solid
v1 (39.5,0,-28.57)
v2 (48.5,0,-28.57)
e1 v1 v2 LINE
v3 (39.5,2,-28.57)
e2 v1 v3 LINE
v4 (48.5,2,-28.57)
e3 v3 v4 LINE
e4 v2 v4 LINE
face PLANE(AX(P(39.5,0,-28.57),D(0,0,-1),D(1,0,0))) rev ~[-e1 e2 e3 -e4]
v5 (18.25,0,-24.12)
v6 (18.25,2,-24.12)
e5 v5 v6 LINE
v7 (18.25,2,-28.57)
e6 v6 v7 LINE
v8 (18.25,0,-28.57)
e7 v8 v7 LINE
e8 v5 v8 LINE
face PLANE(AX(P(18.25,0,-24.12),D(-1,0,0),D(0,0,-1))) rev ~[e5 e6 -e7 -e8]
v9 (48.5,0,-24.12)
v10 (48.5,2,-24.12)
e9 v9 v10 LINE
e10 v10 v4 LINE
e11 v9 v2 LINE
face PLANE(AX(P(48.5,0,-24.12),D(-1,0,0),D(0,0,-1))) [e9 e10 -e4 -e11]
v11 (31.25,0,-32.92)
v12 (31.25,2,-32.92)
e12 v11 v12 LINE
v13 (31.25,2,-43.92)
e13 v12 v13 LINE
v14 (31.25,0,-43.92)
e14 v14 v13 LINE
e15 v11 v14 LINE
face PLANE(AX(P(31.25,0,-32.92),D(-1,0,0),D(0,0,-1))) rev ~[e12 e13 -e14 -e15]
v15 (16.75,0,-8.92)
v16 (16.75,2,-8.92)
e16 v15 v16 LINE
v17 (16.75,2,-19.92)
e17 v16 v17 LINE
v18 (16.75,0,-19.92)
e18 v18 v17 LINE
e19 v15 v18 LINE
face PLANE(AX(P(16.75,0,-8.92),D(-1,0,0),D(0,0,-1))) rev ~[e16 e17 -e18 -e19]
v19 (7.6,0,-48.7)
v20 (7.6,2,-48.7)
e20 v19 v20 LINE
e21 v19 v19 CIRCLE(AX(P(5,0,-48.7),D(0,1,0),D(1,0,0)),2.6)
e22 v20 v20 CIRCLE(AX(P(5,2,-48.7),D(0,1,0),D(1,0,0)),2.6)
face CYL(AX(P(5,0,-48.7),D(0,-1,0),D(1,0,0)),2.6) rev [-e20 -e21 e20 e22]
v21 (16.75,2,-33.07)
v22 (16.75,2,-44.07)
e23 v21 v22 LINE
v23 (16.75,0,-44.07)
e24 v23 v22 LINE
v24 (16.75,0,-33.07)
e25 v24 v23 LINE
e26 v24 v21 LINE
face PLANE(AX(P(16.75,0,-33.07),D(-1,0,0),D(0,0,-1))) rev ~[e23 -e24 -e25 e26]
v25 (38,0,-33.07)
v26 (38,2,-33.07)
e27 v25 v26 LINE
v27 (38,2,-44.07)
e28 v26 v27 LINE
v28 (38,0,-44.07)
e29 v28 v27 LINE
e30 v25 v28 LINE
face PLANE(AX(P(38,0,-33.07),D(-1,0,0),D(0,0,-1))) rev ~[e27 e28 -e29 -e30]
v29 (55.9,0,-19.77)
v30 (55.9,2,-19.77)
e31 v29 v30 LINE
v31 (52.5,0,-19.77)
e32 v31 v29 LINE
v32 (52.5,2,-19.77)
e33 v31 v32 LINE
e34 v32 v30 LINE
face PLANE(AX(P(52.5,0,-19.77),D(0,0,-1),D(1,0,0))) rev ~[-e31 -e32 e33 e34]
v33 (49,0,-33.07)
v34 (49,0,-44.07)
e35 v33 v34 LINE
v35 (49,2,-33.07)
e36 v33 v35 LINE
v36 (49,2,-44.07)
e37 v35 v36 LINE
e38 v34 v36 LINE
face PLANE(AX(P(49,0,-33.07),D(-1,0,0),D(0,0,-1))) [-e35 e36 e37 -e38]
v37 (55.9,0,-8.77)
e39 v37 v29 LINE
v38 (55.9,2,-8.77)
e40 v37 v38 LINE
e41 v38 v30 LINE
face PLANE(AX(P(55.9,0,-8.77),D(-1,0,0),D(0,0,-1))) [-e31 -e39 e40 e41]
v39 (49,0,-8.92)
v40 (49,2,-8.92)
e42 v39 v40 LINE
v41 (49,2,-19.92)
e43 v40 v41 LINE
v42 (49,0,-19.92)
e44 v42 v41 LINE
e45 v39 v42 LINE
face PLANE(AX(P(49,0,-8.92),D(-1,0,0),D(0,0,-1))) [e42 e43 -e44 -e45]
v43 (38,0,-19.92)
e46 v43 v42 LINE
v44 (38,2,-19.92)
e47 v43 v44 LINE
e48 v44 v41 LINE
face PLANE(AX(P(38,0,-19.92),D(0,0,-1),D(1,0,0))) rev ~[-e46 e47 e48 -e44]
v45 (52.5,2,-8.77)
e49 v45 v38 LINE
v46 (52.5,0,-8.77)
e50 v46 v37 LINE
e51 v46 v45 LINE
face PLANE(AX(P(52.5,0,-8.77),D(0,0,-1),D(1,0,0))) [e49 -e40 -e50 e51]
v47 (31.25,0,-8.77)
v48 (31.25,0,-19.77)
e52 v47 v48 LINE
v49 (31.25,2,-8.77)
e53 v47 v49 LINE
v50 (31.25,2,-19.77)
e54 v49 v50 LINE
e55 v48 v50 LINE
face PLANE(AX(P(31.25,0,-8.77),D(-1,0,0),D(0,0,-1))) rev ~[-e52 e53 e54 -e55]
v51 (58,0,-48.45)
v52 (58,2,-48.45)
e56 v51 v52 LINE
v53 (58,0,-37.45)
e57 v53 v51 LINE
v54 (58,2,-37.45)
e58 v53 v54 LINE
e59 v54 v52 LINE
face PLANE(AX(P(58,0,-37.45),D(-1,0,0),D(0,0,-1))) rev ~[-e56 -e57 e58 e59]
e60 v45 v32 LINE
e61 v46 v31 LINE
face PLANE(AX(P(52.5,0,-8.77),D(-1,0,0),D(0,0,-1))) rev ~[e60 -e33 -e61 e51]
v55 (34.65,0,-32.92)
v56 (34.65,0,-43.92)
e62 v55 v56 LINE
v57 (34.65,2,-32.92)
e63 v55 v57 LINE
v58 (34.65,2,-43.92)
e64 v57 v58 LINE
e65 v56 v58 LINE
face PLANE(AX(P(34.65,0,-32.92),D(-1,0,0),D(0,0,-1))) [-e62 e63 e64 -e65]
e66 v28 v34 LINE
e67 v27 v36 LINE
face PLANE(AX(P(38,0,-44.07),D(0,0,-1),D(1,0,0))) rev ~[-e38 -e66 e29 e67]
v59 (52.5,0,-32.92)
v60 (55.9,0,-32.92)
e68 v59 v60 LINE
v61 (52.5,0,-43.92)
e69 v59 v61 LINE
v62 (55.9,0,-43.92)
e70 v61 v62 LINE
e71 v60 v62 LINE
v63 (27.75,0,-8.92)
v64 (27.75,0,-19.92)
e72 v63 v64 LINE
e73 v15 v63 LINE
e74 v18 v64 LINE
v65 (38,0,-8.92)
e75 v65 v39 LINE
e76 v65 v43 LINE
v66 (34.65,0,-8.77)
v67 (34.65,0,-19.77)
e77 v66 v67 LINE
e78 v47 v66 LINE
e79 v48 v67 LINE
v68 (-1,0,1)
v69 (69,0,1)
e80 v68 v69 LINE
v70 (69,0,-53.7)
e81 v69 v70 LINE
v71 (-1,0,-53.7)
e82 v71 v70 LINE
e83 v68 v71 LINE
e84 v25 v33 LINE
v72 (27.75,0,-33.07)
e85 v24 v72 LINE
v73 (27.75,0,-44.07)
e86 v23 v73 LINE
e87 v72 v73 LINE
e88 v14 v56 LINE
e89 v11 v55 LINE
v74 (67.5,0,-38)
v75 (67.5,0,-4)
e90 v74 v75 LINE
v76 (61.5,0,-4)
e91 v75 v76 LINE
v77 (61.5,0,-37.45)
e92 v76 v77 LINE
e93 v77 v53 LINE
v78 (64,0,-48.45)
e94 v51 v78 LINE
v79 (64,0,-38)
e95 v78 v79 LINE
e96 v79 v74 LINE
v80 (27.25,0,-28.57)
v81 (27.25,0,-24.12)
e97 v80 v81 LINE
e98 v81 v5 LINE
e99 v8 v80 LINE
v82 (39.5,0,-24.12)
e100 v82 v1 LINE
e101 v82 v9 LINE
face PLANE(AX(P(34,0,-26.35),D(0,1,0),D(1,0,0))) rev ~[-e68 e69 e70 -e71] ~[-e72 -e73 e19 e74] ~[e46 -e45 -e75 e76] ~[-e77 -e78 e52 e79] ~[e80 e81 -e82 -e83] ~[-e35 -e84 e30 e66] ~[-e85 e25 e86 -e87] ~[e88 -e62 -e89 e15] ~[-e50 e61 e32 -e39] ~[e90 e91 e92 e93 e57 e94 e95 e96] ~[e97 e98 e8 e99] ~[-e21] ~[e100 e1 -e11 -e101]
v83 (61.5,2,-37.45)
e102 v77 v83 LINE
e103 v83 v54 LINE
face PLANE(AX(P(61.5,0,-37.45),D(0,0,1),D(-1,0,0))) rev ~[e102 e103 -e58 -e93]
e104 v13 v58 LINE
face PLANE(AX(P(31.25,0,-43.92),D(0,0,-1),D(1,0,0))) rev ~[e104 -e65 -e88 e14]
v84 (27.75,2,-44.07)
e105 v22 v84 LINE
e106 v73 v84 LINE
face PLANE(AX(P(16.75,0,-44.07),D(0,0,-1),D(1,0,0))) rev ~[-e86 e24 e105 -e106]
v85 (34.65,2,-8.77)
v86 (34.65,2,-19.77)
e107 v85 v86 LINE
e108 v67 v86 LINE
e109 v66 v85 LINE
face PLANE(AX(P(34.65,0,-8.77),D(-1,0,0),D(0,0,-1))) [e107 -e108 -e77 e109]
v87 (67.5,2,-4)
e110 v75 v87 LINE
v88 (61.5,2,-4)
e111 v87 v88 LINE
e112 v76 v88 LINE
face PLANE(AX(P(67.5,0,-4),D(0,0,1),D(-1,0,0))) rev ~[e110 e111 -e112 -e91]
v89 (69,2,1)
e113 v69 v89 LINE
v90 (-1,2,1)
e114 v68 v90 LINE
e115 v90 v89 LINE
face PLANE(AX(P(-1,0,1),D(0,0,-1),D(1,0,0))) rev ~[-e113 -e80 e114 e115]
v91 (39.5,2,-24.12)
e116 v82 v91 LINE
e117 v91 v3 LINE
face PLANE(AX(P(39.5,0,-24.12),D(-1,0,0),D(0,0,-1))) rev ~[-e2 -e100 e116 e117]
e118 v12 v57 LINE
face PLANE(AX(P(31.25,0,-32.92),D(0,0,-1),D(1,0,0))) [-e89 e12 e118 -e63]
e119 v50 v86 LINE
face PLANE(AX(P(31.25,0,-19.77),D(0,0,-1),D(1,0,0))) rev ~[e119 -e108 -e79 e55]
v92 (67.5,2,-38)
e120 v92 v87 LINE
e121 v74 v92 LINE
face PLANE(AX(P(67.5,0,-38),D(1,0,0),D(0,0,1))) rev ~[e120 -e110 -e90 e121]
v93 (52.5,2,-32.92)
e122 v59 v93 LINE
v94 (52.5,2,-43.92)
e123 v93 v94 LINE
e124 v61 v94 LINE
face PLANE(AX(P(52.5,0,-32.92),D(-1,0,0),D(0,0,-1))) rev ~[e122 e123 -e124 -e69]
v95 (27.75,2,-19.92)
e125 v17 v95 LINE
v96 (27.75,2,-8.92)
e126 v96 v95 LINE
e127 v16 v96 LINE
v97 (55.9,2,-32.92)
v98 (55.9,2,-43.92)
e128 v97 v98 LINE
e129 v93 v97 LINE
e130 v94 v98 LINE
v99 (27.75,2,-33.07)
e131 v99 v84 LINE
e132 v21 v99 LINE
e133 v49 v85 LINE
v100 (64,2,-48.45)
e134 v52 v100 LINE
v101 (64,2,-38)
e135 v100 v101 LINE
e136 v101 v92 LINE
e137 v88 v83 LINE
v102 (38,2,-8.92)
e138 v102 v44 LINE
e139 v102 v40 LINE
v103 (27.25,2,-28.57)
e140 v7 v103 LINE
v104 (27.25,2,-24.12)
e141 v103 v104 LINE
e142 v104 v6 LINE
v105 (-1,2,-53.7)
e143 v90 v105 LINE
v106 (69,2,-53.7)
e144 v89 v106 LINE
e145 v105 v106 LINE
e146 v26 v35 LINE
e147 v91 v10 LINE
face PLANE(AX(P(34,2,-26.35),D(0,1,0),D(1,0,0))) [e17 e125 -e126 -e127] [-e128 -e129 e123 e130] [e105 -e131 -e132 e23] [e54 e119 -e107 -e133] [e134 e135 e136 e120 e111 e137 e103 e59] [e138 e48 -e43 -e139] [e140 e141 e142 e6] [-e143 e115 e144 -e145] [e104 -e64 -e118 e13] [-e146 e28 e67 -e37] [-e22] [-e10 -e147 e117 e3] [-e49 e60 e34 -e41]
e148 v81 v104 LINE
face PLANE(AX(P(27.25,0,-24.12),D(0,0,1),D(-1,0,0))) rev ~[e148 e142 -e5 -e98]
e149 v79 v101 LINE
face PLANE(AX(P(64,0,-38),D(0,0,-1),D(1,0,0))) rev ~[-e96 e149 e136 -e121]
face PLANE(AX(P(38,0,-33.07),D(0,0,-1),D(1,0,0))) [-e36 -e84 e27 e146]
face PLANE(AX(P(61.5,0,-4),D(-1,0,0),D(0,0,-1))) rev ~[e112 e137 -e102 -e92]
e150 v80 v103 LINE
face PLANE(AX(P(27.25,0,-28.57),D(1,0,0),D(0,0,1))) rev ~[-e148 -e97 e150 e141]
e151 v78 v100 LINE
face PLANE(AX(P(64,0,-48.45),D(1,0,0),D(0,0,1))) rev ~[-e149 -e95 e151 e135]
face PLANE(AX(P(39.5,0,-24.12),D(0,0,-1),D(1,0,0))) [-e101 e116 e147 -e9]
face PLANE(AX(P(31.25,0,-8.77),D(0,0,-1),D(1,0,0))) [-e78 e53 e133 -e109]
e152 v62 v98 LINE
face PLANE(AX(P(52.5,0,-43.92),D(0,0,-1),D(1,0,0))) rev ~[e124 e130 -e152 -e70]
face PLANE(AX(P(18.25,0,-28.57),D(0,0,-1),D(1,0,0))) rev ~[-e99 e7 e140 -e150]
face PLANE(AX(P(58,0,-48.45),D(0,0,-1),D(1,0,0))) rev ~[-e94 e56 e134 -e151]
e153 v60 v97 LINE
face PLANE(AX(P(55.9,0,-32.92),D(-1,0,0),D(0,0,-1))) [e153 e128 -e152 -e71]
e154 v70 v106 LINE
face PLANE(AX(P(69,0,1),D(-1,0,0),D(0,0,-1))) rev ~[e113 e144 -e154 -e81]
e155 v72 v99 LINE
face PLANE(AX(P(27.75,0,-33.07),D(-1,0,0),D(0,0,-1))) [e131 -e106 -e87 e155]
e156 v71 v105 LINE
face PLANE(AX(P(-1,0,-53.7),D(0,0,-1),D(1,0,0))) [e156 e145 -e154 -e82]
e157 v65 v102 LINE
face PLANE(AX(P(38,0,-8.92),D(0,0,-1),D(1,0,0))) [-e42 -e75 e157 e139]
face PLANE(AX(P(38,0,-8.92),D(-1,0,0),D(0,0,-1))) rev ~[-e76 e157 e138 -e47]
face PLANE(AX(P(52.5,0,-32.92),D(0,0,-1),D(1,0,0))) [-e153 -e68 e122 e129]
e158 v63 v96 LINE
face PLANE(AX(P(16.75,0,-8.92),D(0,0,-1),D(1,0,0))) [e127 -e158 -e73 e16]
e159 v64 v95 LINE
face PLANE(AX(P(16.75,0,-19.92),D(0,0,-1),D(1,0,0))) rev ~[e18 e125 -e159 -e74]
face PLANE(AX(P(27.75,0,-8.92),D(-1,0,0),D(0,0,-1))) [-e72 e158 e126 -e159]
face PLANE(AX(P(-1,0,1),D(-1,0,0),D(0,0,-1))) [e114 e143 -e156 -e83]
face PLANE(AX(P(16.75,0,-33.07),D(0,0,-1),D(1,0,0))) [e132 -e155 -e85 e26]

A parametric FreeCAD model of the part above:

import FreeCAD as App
import Part
import Sketcher

V = App.Vector
Q = App.Units.Quantity


def add_polygon(sketch, points):
    """Adds a closed chain of lines whose ends are joined by coincident constraints."""
    first, n = sketch.GeometryCount, len(points)
    for a, b in zip(points, points[1:] + points[:1]):
        sketch.addGeometry(Part.LineSegment(App.Vector(*a, 0), App.Vector(*b, 0)), False)
    for i in range(n):
        sketch.addConstraint(Sketcher.Constraint("Coincident", first + i, 2, first + (i + 1) % n, 1))

doc = App.newDocument("Part")
body = doc.addObject("PartDesign::Body", "Body")

# Sketch on XZ plane
sketch1 = body.newObject("Sketcher::SketchObject", "Sketch")
sketch1.AttachmentSupport = (doc.getObject("XZ_Plane"), [""])
sketch1.MapMode = "FlatFace"
add_polygon(sketch1, [(-1, -53.7), (-1, 1), (69, 1), (69, -53.7)])  # lines 0-3
add_polygon(sketch1, [(27.8, -8.9), (16.8, -8.9), (16.8, -19.9), (27.8, -19.9)])  # lines 4-7
add_polygon(sketch1, [(34.6, -8.8), (31.2, -8.8), (31.2, -19.8), (34.6, -19.8)])  # lines 8-11
add_polygon(sketch1, [(18.2, -24.1), (18.2, -28.6), (27.2, -28.6), (27.2, -24.1)])  # lines 12-15
add_polygon(sketch1, [(49, -8.9), (38, -8.9), (38, -19.9), (49, -19.9)])  # lines 16-19
add_polygon(sketch1, [(55.9, -8.8), (52.5, -8.8), (52.5, -19.8), (55.9, -19.8)])  # lines 20-23
add_polygon(sketch1, [(48.5, -24.1), (39.5, -24.1), (39.5, -28.6), (48.5, -28.6)])  # lines 24-27
add_polygon(sketch1, [(67.5, -38), (67.5, -4), (61.5, -4), (61.5, -37.5), (58, -37.5), (58, -48.5), (64, -48.5), (64, -38)])  # lines 28-35
add_polygon(sketch1, [(27.8, -33.1), (16.8, -33.1), (16.8, -44.1), (27.8, -44.1)])  # lines 36-39
add_polygon(sketch1, [(34.6, -32.9), (31.2, -32.9), (31.2, -43.9), (34.6, -43.9)])  # lines 40-43
sketch1.addGeometry(Part.Circle(V(5, -48.7, 0), V(0, 0, 1), 2.6), False)  # 44
add_polygon(sketch1, [(49, -33.1), (38, -33.1), (38, -44.1), (49, -44.1)])  # lines 45-48
add_polygon(sketch1, [(55.9, -32.9), (52.5, -32.9), (52.5, -43.9), (55.9, -43.9)])  # lines 49-52
sketch1.addConstraint(Sketcher.Constraint("Vertical", 0))
sketch1.addConstraint(Sketcher.Constraint("Horizontal", 1))
sketch1.addConstraint(Sketcher.Constraint("Vertical", 2))
sketch1.addConstraint(Sketcher.Constraint("Horizontal", 3))
sketch1.addConstraint(Sketcher.Constraint("Horizontal", 4))
sketch1.addConstraint(Sketcher.Constraint("Vertical", 5))
sketch1.addConstraint(Sketcher.Constraint("Horizontal", 6))
sketch1.addConstraint(Sketcher.Constraint("Vertical", 7))
sketch1.addConstraint(Sketcher.Constraint("Horizontal", 8))
sketch1.addConstraint(Sketcher.Constraint("Vertical", 9))
sketch1.addConstraint(Sketcher.Constraint("Horizontal", 10))
sketch1.addConstraint(Sketcher.Constraint("Vertical", 11))
sketch1.addConstraint(Sketcher.Constraint("Vertical", 12))
sketch1.addConstraint(Sketcher.Constraint("Horizontal", 13))
sketch1.addConstraint(Sketcher.Constraint("Vertical", 14))
sketch1.addConstraint(Sketcher.Constraint("Horizontal", 15))
sketch1.addConstraint(Sketcher.Constraint("Horizontal", 16))
sketch1.addConstraint(Sketcher.Constraint("Vertical", 17))
sketch1.addConstraint(Sketcher.Constraint("Horizontal", 18))
sketch1.addConstraint(Sketcher.Constraint("Vertical", 19))
sketch1.addConstraint(Sketcher.Constraint("Horizontal", 20))
sketch1.addConstraint(Sketcher.Constraint("Vertical", 21))
sketch1.addConstraint(Sketcher.Constraint("Horizontal", 22))
sketch1.addConstraint(Sketcher.Constraint("Vertical", 23))
sketch1.addConstraint(Sketcher.Constraint("Horizontal", 24))
sketch1.addConstraint(Sketcher.Constraint("Vertical", 25))
sketch1.addConstraint(Sketcher.Constraint("Horizontal", 26))
sketch1.addConstraint(Sketcher.Constraint("Vertical", 27))
sketch1.addConstraint(Sketcher.Constraint("Vertical", 28))
sketch1.addConstraint(Sketcher.Constraint("Horizontal", 29))
sketch1.addConstraint(Sketcher.Constraint("Vertical", 30))
sketch1.addConstraint(Sketcher.Constraint("Horizontal", 31))
sketch1.addConstraint(Sketcher.Constraint("Vertical", 32))
sketch1.addConstraint(Sketcher.Constraint("Horizontal", 33))
sketch1.addConstraint(Sketcher.Constraint("Vertical", 34))
sketch1.addConstraint(Sketcher.Constraint("Horizontal", 35))
sketch1.addConstraint(Sketcher.Constraint("Horizontal", 36))
sketch1.addConstraint(Sketcher.Constraint("Vertical", 37))
sketch1.addConstraint(Sketcher.Constraint("Horizontal", 38))
sketch1.addConstraint(Sketcher.Constraint("Vertical", 39))
sketch1.addConstraint(Sketcher.Constraint("Horizontal", 40))
sketch1.addConstraint(Sketcher.Constraint("Vertical", 41))
sketch1.addConstraint(Sketcher.Constraint("Horizontal", 42))
sketch1.addConstraint(Sketcher.Constraint("Vertical", 43))
sketch1.addConstraint(Sketcher.Constraint("Horizontal", 45))
sketch1.addConstraint(Sketcher.Constraint("Vertical", 46))
sketch1.addConstraint(Sketcher.Constraint("Horizontal", 47))
sketch1.addConstraint(Sketcher.Constraint("Vertical", 48))
sketch1.addConstraint(Sketcher.Constraint("Horizontal", 49))
sketch1.addConstraint(Sketcher.Constraint("Vertical", 50))
sketch1.addConstraint(Sketcher.Constraint("Horizontal", 51))
sketch1.addConstraint(Sketcher.Constraint("Vertical", 52))
sketch1.addConstraint(Sketcher.Constraint("Horizontal", 7, 2, 16, 2))
sketch1.addConstraint(Sketcher.Constraint("Horizontal", 6, 2, 17, 2))
sketch1.addConstraint(Sketcher.Constraint("Horizontal", 11, 2, 20, 2))
sketch1.addConstraint(Sketcher.Constraint("Horizontal", 10, 2, 21, 2))
sketch1.addConstraint(Sketcher.Constraint("Horizontal", 15, 2, 24, 2))
sketch1.addConstraint(Sketcher.Constraint("Horizontal", 13, 2, 25, 2))
sketch1.addConstraint(Sketcher.Constraint("Horizontal", 39, 2, 45, 2))
sketch1.addConstraint(Sketcher.Constraint("Horizontal", 38, 2, 46, 2))
sketch1.addConstraint(Sketcher.Constraint("Horizontal", 43, 2, 49, 2))
sketch1.addConstraint(Sketcher.Constraint("Horizontal", 42, 2, 50, 2))
sketch1.addConstraint(Sketcher.Constraint("Vertical", 5, 2, 36, 2))
sketch1.addConstraint(Sketcher.Constraint("Vertical", 7, 2, 38, 2))
sketch1.addConstraint(Sketcher.Constraint("Vertical", 9, 2, 40, 2))
sketch1.addConstraint(Sketcher.Constraint("Vertical", 11, 2, 42, 2))
sketch1.addConstraint(Sketcher.Constraint("Vertical", 17, 2, 45, 2))
sketch1.addConstraint(Sketcher.Constraint("Vertical", 19, 2, 47, 2))
sketch1.addConstraint(Sketcher.Constraint("Vertical", 21, 2, 49, 2))
sketch1.addConstraint(Sketcher.Constraint("Vertical", 23, 2, 51, 2))
sketch1.addConstraint(Sketcher.Constraint("Equal", 6, 16))
sketch1.addConstraint(Sketcher.Constraint("Equal", 10, 20))
sketch1.addConstraint(Sketcher.Constraint("Equal", 15, 24))
sketch1.addConstraint(Sketcher.Constraint("Equal", 29, 33))
sketch1.addConstraint(Sketcher.Constraint("Equal", 47, 5))
sketch1.addConstraint(Sketcher.Constraint("Equal", 7, 9))
sketch1.addConstraint(Sketcher.Constraint("Equal", 23, 32))
sketch1.addConstraint(Sketcher.Constraint("Equal", 32, 37))
sketch1.addConstraint(Sketcher.Constraint("Equal", 39, 41))
sketch1.addConstraint(Sketcher.Constraint("Diameter", 44, Q("5.2 mm")))
sketch1.addConstraint(Sketcher.Constraint("DistanceX", 1, 1, 1, 2, Q("70 mm")))
sketch1.addConstraint(Sketcher.Constraint("DistanceX", 4, 2, 4, 1, Q("11 mm")))
sketch1.addConstraint(Sketcher.Constraint("DistanceX", 13, 1, 13, 2, Q("9 mm")))
sketch1.addConstraint(Sketcher.Constraint("DistanceX", 29, 2, 29, 1, Q("6 mm")))
sketch1.addConstraint(Sketcher.Constraint("DistanceY", 28, 1, 28, 2, Q("34 mm")))
sketch1.addConstraint(Sketcher.Constraint("DistanceX", 8, 2, 8, 1, Q("3.4 mm")))
sketch1.addConstraint(Sketcher.Constraint("DistanceX", 31, 2, 31, 1, Q("3.5 mm")))
sketch1.addConstraint(Sketcher.Constraint("DistanceY", 0, 1, 0, 2, Q("54.7 mm")))
sketch1.addConstraint(Sketcher.Constraint("DistanceX", -1, 1, 44, 3, Q("5 mm")))
sketch1.addConstraint(Sketcher.Constraint("DistanceX", 0, 2, -1, 1, Q("1 mm")))
sketch1.addConstraint(Sketcher.Constraint("DistanceY", -1, 1, 0, 2, Q("1 mm")))
sketch1.addConstraint(Sketcher.Constraint("DistanceX", -1, 1, 16, 2, Q("38 mm")))
sketch1.addConstraint(Sketcher.Constraint("DistanceY", 28, 2, -1, 1, Q("4 mm")))
sketch1.addConstraint(Sketcher.Constraint("DistanceX", -1, 1, 31, 2, Q("58 mm")))
sketch1.addConstraint(Sketcher.Constraint("DistanceY", 2, 2, 44, 3, Q("5 mm")))
sketch1.addConstraint(Sketcher.Constraint("DistanceX", 12, 2, 9, 2, Q("13 mm")))
sketch1.addConstraint(Sketcher.Constraint("DistanceX", 26, 2, 21, 2, Q("4 mm")))
sketch1.addConstraint(Sketcher.Constraint("DistanceX", 20, 2, 28, 2, Q("15 mm")))
sketch1.addConstraint(Sketcher.Constraint("DistanceY", 12, 2, 12, 1, Q("4.45 mm")))
sketch1.addConstraint(Sketcher.Constraint("DistanceY", 30, 2, 30, 1, Q("33.45 mm")))
sketch1.addConstraint(Sketcher.Constraint("DistanceX", 7, 2, 8, 2, Q("3.5 mm")))
sketch1.addConstraint(Sketcher.Constraint("DistanceY", 12, 2, 9, 2, Q("8.8 mm")))
sketch1.addConstraint(Sketcher.Constraint("DistanceY", 14, 2, 6, 2, Q("4.2 mm")))
sketch1.addConstraint(Sketcher.Constraint("DistanceY", 36, 2, 12, 2, Q("4.5 mm")))
sketch1.addConstraint(Sketcher.Constraint("DistanceY", 40, 2, 14, 2, Q("8.8 mm")))
sketch1.addConstraint(Sketcher.Constraint("DistanceX", -1, 1, 4, 2, Q("16.75 mm")))
sketch1.addConstraint(Sketcher.Constraint("DistanceY", 4, 2, -1, 1, Q("8.92 mm")))
pad1 = body.newObject("PartDesign::Pad", "Pad")
pad1.Profile = sketch1
pad1.Length = 2
pad1.Reversed = True

doc.recompute()
